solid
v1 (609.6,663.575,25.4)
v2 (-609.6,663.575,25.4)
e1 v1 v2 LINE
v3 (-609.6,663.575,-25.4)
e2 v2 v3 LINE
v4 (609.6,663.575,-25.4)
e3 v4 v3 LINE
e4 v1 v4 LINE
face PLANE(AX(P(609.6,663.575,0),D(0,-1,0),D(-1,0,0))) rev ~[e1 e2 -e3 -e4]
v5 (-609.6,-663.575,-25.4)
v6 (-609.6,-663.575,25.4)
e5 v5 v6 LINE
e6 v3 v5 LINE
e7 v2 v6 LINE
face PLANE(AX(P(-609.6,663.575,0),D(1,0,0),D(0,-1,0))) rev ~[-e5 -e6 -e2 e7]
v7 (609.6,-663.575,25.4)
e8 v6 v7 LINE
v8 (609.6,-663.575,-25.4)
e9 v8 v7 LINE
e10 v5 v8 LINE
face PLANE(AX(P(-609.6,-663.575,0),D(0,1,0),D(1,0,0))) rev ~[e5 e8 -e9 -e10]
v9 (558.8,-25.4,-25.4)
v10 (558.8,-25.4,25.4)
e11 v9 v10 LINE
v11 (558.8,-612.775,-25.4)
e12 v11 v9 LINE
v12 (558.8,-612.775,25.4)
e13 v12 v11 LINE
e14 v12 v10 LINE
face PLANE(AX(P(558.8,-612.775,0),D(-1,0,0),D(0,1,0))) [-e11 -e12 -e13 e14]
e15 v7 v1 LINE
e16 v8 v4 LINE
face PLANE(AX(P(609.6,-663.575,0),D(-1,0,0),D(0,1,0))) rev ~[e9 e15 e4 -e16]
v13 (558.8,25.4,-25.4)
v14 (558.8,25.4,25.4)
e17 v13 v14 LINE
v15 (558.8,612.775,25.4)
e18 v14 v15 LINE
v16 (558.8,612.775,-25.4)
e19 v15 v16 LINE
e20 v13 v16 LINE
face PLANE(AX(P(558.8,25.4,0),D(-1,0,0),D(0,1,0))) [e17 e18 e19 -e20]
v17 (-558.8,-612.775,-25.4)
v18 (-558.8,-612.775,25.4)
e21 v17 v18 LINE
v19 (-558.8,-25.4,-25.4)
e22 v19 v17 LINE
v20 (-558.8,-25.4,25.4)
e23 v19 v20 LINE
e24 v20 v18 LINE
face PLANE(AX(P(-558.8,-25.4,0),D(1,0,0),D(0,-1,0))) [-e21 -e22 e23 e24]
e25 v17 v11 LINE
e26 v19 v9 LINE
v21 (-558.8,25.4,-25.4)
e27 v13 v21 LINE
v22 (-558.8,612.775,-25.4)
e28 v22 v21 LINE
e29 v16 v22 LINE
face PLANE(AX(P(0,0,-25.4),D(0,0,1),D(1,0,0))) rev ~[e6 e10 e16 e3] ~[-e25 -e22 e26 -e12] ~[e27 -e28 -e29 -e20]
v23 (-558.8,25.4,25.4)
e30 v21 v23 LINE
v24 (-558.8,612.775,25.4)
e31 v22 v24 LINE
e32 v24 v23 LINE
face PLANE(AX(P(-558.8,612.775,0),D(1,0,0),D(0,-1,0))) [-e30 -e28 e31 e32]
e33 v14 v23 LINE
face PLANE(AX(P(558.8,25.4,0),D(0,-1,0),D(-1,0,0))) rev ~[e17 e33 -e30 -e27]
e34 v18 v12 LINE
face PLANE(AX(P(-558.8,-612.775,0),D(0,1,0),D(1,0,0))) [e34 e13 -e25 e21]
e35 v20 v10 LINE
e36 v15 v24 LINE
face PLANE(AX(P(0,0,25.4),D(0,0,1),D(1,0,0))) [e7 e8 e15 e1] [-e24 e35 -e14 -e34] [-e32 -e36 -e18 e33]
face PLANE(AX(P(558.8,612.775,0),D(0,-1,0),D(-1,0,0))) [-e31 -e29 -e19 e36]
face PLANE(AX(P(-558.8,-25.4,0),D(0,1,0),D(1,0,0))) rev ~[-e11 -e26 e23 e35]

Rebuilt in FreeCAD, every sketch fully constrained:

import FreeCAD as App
import Part
import Sketcher
Q = App.Units.Quantity


def add_polygon(sketch, points):
    """Adds a closed chain of lines whose ends are joined by coincident constraints."""
    first, n = sketch.GeometryCount, len(points)
    for a, b in zip(points, points[1:] + points[:1]):
        sketch.addGeometry(Part.LineSegment(App.Vector(*a, 0), App.Vector(*b, 0)), False)
    for i in range(n):
        sketch.addConstraint(Sketcher.Constraint("Coincident", first + i, 2, first + (i + 1) % n, 1))

doc = App.newDocument("Part")
body = doc.addObject("PartDesign::Body", "Body")

sketch1 = body.newObject("Sketcher::SketchObject", "Sketch")
sketch1.AttachmentSupport = (doc.getObject("XY_Plane"), [""])
sketch1.MapMode = "FlatFace"
add_polygon(sketch1, [(-610, 664), (-610, -664), (610, -664), (610, 664)])
add_polygon(sketch1, [(559, -613), (-559, -613), (-559, -25), (559, -25)])
add_polygon(sketch1, [(559, 613), (559, 25), (-559, 25), (-559, 613)])
sketch1.addConstraint([
    Sketcher.Constraint("Vertical", 0),
    Sketcher.Constraint("Horizontal", 1),
    Sketcher.Constraint("Vertical", 2),
    Sketcher.Constraint("Horizontal", 3),
    Sketcher.Constraint("Horizontal", 4),
    Sketcher.Constraint("Vertical", 5),
    Sketcher.Constraint("Horizontal", 6),
    Sketcher.Constraint("Vertical", 7),
    Sketcher.Constraint("Vertical", 8),
    Sketcher.Constraint("Horizontal", 9),
    Sketcher.Constraint("Vertical", 10),
    Sketcher.Constraint("Horizontal", 11),
    Sketcher.Constraint("Symmetric", 0, 2, 2, 2, -1, 1),
    Sketcher.Constraint("Symmetric", 5, 2, 8, 2, -1, 1),
    Sketcher.Constraint("Symmetric", 7, 2, 10, 2, -1, 1),
    Sketcher.Constraint("Vertical", 7, 2, 8, 2),
    Sketcher.Constraint("DistanceX", 1, 1, 1, 2, Q("48 in")),
    Sketcher.Constraint("DistanceX", 4, 2, 4, 1, Q("44 in")),
    Sketcher.Constraint("DistanceY", 0, 2, 4, 2, Q("2 in")),
    Sketcher.Constraint("DistanceY", 6, 2, 8, 2, Q("2 in")),
    Sketcher.Constraint("DistanceY", 0, 2, 0, 1, Q("52.25 in")),
])
pad1 = body.newObject("PartDesign::Pad", "Pad")
pad1.Profile = sketch1
pad1.Length = Q("2 in")
pad1.Midplane = True

doc.recompute()
